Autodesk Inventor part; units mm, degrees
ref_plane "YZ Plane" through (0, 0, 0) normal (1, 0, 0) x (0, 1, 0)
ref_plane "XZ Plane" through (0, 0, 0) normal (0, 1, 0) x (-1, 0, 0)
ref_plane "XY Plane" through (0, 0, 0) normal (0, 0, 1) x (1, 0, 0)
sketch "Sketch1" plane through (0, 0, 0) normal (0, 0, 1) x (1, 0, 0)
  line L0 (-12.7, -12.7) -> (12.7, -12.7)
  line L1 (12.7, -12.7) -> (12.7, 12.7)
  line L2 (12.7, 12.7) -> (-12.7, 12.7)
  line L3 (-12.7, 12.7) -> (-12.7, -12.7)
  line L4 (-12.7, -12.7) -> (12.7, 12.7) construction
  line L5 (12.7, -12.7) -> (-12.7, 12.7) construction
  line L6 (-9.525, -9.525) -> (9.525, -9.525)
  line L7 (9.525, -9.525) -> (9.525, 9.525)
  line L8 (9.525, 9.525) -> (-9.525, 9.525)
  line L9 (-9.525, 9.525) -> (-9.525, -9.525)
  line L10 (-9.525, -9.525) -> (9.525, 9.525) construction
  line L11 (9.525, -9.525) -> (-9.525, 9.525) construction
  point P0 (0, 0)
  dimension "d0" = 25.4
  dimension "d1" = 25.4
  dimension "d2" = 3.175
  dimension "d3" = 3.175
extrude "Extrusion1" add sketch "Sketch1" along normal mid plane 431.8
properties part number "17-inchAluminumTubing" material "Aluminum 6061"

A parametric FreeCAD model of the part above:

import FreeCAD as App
import Part
import Sketcher
Q = App.Units.Quantity

doc = App.newDocument("Part")
body = doc.addObject("PartDesign::Body", "Body")

# Sketch on XY plane
sketch1 = body.newObject("Sketcher::SketchObject", "Sketch")
sketch1.AttachmentSupport = (doc.getObject("XY_Plane"), [""])
sketch1.MapMode = "FlatFace"
sketch1.addGeometry([
    Part.LineSegment(App.Vector(-12.7, 12.7, 0), App.Vector(-12.7, -12.7, 0)),  # 0
    Part.LineSegment(App.Vector(-12.7, -12.7, 0), App.Vector(12.7, -12.7, 0)),  # 1
    Part.LineSegment(App.Vector(12.7, -12.7, 0), App.Vector(12.7, 12.7, 0)),  # 2
    Part.LineSegment(App.Vector(12.7, 12.7, 0), App.Vector(-12.7, 12.7, 0)),  # 3
    Part.LineSegment(App.Vector(9.525, -9.525, 0), App.Vector(-9.525, -9.525, 0)),  # 4
    Part.LineSegment(App.Vector(-9.525, -9.525, 0), App.Vector(-9.525, 9.525, 0)),  # 5
    Part.LineSegment(App.Vector(-9.525, 9.525, 0), App.Vector(9.525, 9.525, 0)),  # 6
    Part.LineSegment(App.Vector(9.525, 9.525, 0), App.Vector(9.525, -9.525, 0)),  # 7
], False)
sketch1.addConstraint([
    Sketcher.Constraint("Coincident", 0, 2, 1, 1),
    Sketcher.Constraint("Coincident", 1, 2, 2, 1),
    Sketcher.Constraint("Coincident", 2, 2, 3, 1),
    Sketcher.Constraint("Coincident", 3, 2, 0, 1),
    Sketcher.Constraint("Coincident", 4, 2, 5, 1),
    Sketcher.Constraint("Coincident", 5, 2, 6, 1),
    Sketcher.Constraint("Coincident", 6, 2, 7, 1),
    Sketcher.Constraint("Coincident", 7, 2, 4, 1),
    Sketcher.Constraint("Vertical", 0),
    Sketcher.Constraint("Horizontal", 1),
    Sketcher.Constraint("Vertical", 2),
    Sketcher.Constraint("Horizontal", 3),
    Sketcher.Constraint("Horizontal", 4),
    Sketcher.Constraint("Vertical", 5),
    Sketcher.Constraint("Horizontal", 6),
    Sketcher.Constraint("Vertical", 7),
    Sketcher.Constraint("Symmetric", 0, 2, 2, 2, -1, 1),
    Sketcher.Constraint("Symmetric", 4, 2, 6, 2, -1, 1),
    Sketcher.Constraint("Equal", 3, 0),
    Sketcher.Constraint("Equal", 6, 5),
    Sketcher.Constraint("DistanceX", 1, 1, 1, 2, Q("1 in")),
    Sketcher.Constraint("DistanceX", 0, 2, 4, 2, Q("0.125 in")),
])
pad1 = body.newObject("PartDesign::Pad", "Pad")
pad1.Profile = sketch1
pad1.Length = Q("17 in")
pad1.Midplane = True

doc.recompute()
